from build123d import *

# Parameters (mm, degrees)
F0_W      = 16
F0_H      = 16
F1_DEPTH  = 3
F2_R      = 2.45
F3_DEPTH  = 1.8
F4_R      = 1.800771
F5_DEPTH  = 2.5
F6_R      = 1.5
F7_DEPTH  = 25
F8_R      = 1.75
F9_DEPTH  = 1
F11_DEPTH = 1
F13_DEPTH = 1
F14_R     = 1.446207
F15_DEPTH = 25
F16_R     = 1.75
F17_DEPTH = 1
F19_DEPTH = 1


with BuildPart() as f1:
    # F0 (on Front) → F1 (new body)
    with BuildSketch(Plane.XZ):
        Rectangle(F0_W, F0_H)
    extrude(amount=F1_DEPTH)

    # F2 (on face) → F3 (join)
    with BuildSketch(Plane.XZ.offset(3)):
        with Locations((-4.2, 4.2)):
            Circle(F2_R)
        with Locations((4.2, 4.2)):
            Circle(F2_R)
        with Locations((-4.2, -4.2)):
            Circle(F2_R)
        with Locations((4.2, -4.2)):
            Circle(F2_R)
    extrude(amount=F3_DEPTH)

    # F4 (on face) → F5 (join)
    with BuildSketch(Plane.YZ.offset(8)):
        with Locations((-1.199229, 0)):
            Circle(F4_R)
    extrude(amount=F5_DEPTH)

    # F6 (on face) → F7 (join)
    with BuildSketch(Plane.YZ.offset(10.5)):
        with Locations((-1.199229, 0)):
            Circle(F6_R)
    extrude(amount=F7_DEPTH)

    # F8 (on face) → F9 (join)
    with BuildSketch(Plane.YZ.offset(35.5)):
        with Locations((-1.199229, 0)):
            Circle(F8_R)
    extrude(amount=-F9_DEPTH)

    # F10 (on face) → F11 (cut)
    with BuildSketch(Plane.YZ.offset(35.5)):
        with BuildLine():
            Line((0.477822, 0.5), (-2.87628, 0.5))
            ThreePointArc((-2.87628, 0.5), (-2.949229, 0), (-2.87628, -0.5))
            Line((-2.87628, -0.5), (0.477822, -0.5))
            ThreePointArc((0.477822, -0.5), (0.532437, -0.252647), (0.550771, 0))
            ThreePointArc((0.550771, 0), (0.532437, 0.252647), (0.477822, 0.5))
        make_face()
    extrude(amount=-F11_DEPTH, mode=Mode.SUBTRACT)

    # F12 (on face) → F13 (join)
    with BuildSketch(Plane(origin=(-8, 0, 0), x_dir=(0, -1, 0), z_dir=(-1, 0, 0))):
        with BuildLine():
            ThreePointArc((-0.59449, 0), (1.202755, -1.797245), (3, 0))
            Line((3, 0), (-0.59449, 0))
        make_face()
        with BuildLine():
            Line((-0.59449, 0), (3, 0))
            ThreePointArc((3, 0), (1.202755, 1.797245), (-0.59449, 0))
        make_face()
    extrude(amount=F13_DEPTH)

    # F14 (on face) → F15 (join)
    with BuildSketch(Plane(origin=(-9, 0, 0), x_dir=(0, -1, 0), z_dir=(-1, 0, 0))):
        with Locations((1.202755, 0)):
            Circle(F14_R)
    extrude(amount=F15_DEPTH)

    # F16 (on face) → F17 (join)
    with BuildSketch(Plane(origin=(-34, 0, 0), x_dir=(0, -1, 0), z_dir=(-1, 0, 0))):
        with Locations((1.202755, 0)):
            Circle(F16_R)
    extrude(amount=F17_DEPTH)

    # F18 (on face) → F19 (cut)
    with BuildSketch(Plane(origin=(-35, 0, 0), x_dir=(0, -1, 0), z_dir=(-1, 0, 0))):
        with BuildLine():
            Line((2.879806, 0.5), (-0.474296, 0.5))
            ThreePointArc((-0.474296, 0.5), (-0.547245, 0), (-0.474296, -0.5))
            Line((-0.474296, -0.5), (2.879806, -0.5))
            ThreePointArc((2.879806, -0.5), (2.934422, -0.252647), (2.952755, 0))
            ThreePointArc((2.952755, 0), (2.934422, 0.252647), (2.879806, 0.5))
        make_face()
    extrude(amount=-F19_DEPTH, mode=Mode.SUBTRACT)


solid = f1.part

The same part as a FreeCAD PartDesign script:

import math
import FreeCAD as App
import Part
import Sketcher
Q = App.Units.Quantity

doc = App.newDocument("Part")
body = doc.addObject("PartDesign::Body", "Body")

# Sketch on XZ plane
sketch1 = body.newObject("Sketcher::SketchObject", "Sketch")
sketch1.AttachmentSupport = (doc.getObject("XZ_Plane"), [""])
sketch1.MapMode = "FlatFace"
sketch1.addGeometry(Part.LineSegment(App.Vector(-8, 8, 0), App.Vector(-8, -8, 0)), False)
sketch1.addGeometry(Part.LineSegment(App.Vector(-8, -8, 0), App.Vector(8, -8, 0)), False)
sketch1.addGeometry(Part.LineSegment(App.Vector(8, -8, 0), App.Vector(8, 8, 0)), False)
sketch1.addGeometry(Part.LineSegment(App.Vector(8, 8, 0), App.Vector(-8, 8, 0)), False)
sketch1.addConstraint(Sketcher.Constraint("Coincident", 0, 2, 1, 1))
sketch1.addConstraint(Sketcher.Constraint("Coincident", 1, 2, 2, 1))
sketch1.addConstraint(Sketcher.Constraint("Coincident", 2, 2, 3, 1))
sketch1.addConstraint(Sketcher.Constraint("Coincident", 3, 2, 0, 1))
sketch1.addConstraint(Sketcher.Constraint("Vertical", 0))
sketch1.addConstraint(Sketcher.Constraint("Horizontal", 1))
sketch1.addConstraint(Sketcher.Constraint("Vertical", 2))
sketch1.addConstraint(Sketcher.Constraint("Horizontal", 3))
sketch1.addConstraint(Sketcher.Constraint("Symmetric", 0, 2, 2, 2, -1, 1))
sketch1.addConstraint(Sketcher.Constraint("Equal", 3, 0))
sketch1.addConstraint(Sketcher.Constraint("DistanceX", 1, 1, 1, 2, Q("16 mm")))
pad1 = body.newObject("PartDesign::Pad", "Pad")
pad1.Profile = sketch1
pad1.Length = 3

# Sketch on XZ plane
sketch2 = body.newObject("Sketcher::SketchObject", "Sketch001")
sketch2.AttachmentSupport = (doc.getObject("XZ_Plane"), [""])
sketch2.MapMode = "FlatFace"
sketch2.AttachmentOffset = App.Placement(App.Vector(0, 0, 3), App.Rotation())
sketch2.addGeometry(Part.Circle(App.Vector(-4.2, 4.2, 0), App.Vector(0, 0, 1), 2.5), False)
sketch2.addGeometry(Part.Circle(App.Vector(4.2, 4.2, 0), App.Vector(0, 0, 1), 2.5), False)
sketch2.addGeometry(Part.Circle(App.Vector(-4.2, -4.2, 0), App.Vector(0, 0, 1), 2.5), False)
sketch2.addGeometry(Part.Circle(App.Vector(4.2, -4.2, 0), App.Vector(0, 0, 1), 2.5), False)
sketch2.addConstraint(Sketcher.Constraint("Equal", 0, 1))
sketch2.addConstraint(Sketcher.Constraint("Equal", 1, 2))
sketch2.addConstraint(Sketcher.Constraint("Equal", 2, 3))
sketch2.addConstraint(Sketcher.Constraint("Symmetric", 1, 3, 2, 3, -1, 1))
sketch2.addConstraint(Sketcher.Constraint("Symmetric", 0, 3, 3, 3, -1, 1))
sketch2.addConstraint(Sketcher.Constraint("Symmetric", 0, 3, 1, 3, -2))
sketch2.addConstraint(Sketcher.Constraint("Diameter", 0, Q("4.9 mm")))
sketch2.addConstraint(Sketcher.Constraint("DistanceX", 0, 3, -1, 1, Q("4.2 mm")))
sketch2.addConstraint(Sketcher.Constraint("DistanceY", -1, 1, 0, 3, Q("4.2 mm")))
pad2 = body.newObject("PartDesign::Pad", "Pad001")
pad2.Profile = sketch2
pad2.Length = 1.8

# Sketch on YZ plane
sketch3 = body.newObject("Sketcher::SketchObject", "Sketch002")
sketch3.AttachmentSupport = (doc.getObject("YZ_Plane"), [""])
sketch3.MapMode = "FlatFace"
sketch3.AttachmentOffset = App.Placement(App.Vector(0, 0, 8), App.Rotation())
sketch3.addGeometry(Part.Circle(App.Vector(-1.2, 0, 0), App.Vector(0, 0, 1), 1.8), False)
sketch3.addConstraint(Sketcher.Constraint("PointOnObject", 0, 3, -1))
sketch3.addConstraint(Sketcher.Constraint("Diameter", 0, Q("3.601542 mm")))
sketch3.addConstraint(Sketcher.Constraint("DistanceX", 0, 3, -1, 1, Q("1.199229 mm")))
pad3 = body.newObject("PartDesign::Pad", "Pad002")
pad3.Profile = sketch3
pad3.Length = 2.5

# Sketch on YZ plane
sketch4 = body.newObject("Sketcher::SketchObject", "Sketch003")
sketch4.AttachmentSupport = (doc.getObject("YZ_Plane"), [""])
sketch4.MapMode = "FlatFace"
sketch4.AttachmentOffset = App.Placement(App.Vector(0, 0, 10.5), App.Rotation())
sketch4.addGeometry(Part.Circle(App.Vector(-1.2, 0, 0), App.Vector(0, 0, 1), 1.5), False)
sketch4.addConstraint(Sketcher.Constraint("PointOnObject", 0, 3, -1))
sketch4.addConstraint(Sketcher.Constraint("Diameter", 0, Q("3 mm")))
sketch4.addConstraint(Sketcher.Constraint("DistanceX", 0, 3, -1, 1, Q("1.199229 mm")))
pad4 = body.newObject("PartDesign::Pad", "Pad003")
pad4.Profile = sketch4
pad4.Length = 25

# Sketch on YZ plane
sketch5 = body.newObject("Sketcher::SketchObject", "Sketch004")
sketch5.AttachmentSupport = (doc.getObject("YZ_Plane"), [""])
sketch5.MapMode = "FlatFace"
sketch5.AttachmentOffset = App.Placement(App.Vector(0, 0, 35.5), App.Rotation())
sketch5.addGeometry(Part.Circle(App.Vector(-1.2, 0, 0), App.Vector(0, 0, 1), 1.8), False)
sketch5.addConstraint(Sketcher.Constraint("PointOnObject", 0, 3, -1))
sketch5.addConstraint(Sketcher.Constraint("Diameter", 0, Q("3.5 mm")))
sketch5.addConstraint(Sketcher.Constraint("DistanceX", 0, 3, -1, 1, Q("1.199229 mm")))
pad5 = body.newObject("PartDesign::Pad", "Pad004")
pad5.Profile = sketch5
pad5.Length = 1
pad5.Reversed = True

# Sketch on YZ plane
sketch6 = body.newObject("Sketcher::SketchObject", "Sketch005")
sketch6.AttachmentSupport = (doc.getObject("YZ_Plane"), [""])
sketch6.MapMode = "FlatFace"
sketch6.AttachmentOffset = App.Placement(App.Vector(0, 0, 35.5), App.Rotation())
sketch6.addGeometry(Part.LineSegment(App.Vector(0.5, 0.5, 0), App.Vector(-2.9, 0.5, 0)), False)
sketch6.addGeometry(Part.ArcOfCircle(Part.Circle(App.Vector(-1.2, 0, 0), App.Vector(0, 0, 1), 1.8), math.radians(163), math.radians(197)), False)
sketch6.addGeometry(Part.LineSegment(App.Vector(-2.9, -0.5, 0), App.Vector(0.5, -0.5, 0)), False)
sketch6.addGeometry(Part.ArcOfCircle(Part.Circle(App.Vector(-1.2, 0, 0), App.Vector(0, 0, 1), 1.8), math.radians(-16.6), math.radians(0)), False)
sketch6.addGeometry(Part.ArcOfCircle(Part.Circle(App.Vector(-1.2, 0, 0), App.Vector(0, 0, 1), 1.8), math.radians(0), math.radians(16.6)), False)
sketch6.addConstraint(Sketcher.Constraint("Coincident", 0, 2, 1, 1))
sketch6.addConstraint(Sketcher.Constraint("Coincident", 1, 2, 2, 1))
sketch6.addConstraint(Sketcher.Constraint("Coincident", 2, 2, 3, 1))
sketch6.addConstraint(Sketcher.Constraint("Coincident", 3, 2, 4, 1))
sketch6.addConstraint(Sketcher.Constraint("Coincident", 4, 2, 0, 1))
sketch6.addConstraint(Sketcher.Constraint("Horizontal", 0))
sketch6.addConstraint(Sketcher.Constraint("Horizontal", 2))
sketch6.addConstraint(Sketcher.Constraint("Equal", 3, 4))
sketch6.addConstraint(Sketcher.Constraint("Symmetric", 0, 2, 1, 2, -1))
sketch6.addConstraint(Sketcher.Constraint("PointOnObject", 3, 2, -1))
sketch6.addConstraint(Sketcher.Constraint("Vertical", 2, 2, 4, 2))
sketch6.addConstraint(Sketcher.Constraint("Radius", 1, Q("1.75 mm")))
sketch6.addConstraint(Sketcher.Constraint("DistanceY", 1, 2, 0, 2, Q("1 mm")))
sketch6.addConstraint(Sketcher.Constraint("DistanceX", 1, 3, 3, 2, Q("1.75 mm")))
sketch6.addConstraint(Sketcher.Constraint("Radius", 3, Q("1.750064 mm")))
sketch6.addConstraint(Sketcher.Constraint("DistanceX", 0, 2, 0, 1, Q("3.354102 mm")))
sketch6.addConstraint(Sketcher.Constraint("DistanceX", 1, 3, -1, 1, Q("1.199229 mm")))
pocket1 = body.newObject("PartDesign::Pocket", "Pocket")
pocket1.Profile = sketch6
pocket1.Length = 1

# Sketch on YZ plane
sketch7 = body.newObject("Sketcher::SketchObject", "Sketch006")
sketch7.AttachmentSupport = (doc.getObject("YZ_Plane"), [""])
sketch7.MapMode = "FlatFace"
sketch7.AttachmentOffset = App.Placement(App.Vector(0, 0, -8), App.Rotation())
sketch7.addGeometry(Part.Circle(App.Vector(-1.2, 0, 0), App.Vector(0, 0, 1), 1.8), False)
sketch7.addConstraint(Sketcher.Constraint("PointOnObject", 0, 3, -1))
sketch7.addConstraint(Sketcher.Constraint("Diameter", 0, Q("3.59449 mm")))
sketch7.addConstraint(Sketcher.Constraint("DistanceX", 0, 3, -1, 1, Q("1.202755 mm")))
pad6 = body.newObject("PartDesign::Pad", "Pad005")
pad6.Profile = sketch7
pad6.Length = 1
pad6.Reversed = True

# Sketch on YZ plane
sketch8 = body.newObject("Sketcher::SketchObject", "Sketch007")
sketch8.AttachmentSupport = (doc.getObject("YZ_Plane"), [""])
sketch8.MapMode = "FlatFace"
sketch8.AttachmentOffset = App.Placement(App.Vector(0, 0, -9), App.Rotation())
sketch8.addGeometry(Part.Circle(App.Vector(-1.2, 0, 0), App.Vector(0, 0, 1), 1.4), False)
sketch8.addConstraint(Sketcher.Constraint("PointOnObject", 0, 3, -1))
sketch8.addConstraint(Sketcher.Constraint("Diameter", 0, Q("2.892414 mm")))
sketch8.addConstraint(Sketcher.Constraint("DistanceX", 0, 3, -1, 1, Q("1.202755 mm")))
pad7 = body.newObject("PartDesign::Pad", "Pad006")
pad7.Profile = sketch8
pad7.Length = 25
pad7.Reversed = True

# Sketch on YZ plane
sketch9 = body.newObject("Sketcher::SketchObject", "Sketch008")
sketch9.AttachmentSupport = (doc.getObject("YZ_Plane"), [""])
sketch9.MapMode = "FlatFace"
sketch9.AttachmentOffset = App.Placement(App.Vector(0, 0, -34), App.Rotation())
sketch9.addGeometry(Part.Circle(App.Vector(-1.2, 0, 0), App.Vector(0, 0, 1), 1.8), False)
sketch9.addConstraint(Sketcher.Constraint("PointOnObject", 0, 3, -1))
sketch9.addConstraint(Sketcher.Constraint("Diameter", 0, Q("3.5 mm")))
sketch9.addConstraint(Sketcher.Constraint("DistanceX", 0, 3, -1, 1, Q("1.202755 mm")))
pad8 = body.newObject("PartDesign::Pad", "Pad007")
pad8.Profile = sketch9
pad8.Length = 1
pad8.Reversed = True

# Sketch on YZ plane
sketch10 = body.newObject("Sketcher::SketchObject", "Sketch009")
sketch10.AttachmentSupport = (doc.getObject("YZ_Plane"), [""])
sketch10.MapMode = "FlatFace"
sketch10.AttachmentOffset = App.Placement(App.Vector(0, 0, -35), App.Rotation())
sketch10.addGeometry(Part.LineSegment(App.Vector(-2.9, 0.5, 0), App.Vector(0.5, 0.5, 0)), False)
sketch10.addGeometry(Part.ArcOfCircle(Part.Circle(App.Vector(-1.2, 0, 0), App.Vector(0, 0, 1), 1.8), math.radians(-17), math.radians(17)), False)
sketch10.addGeometry(Part.LineSegment(App.Vector(0.5, -0.5, 0), App.Vector(-2.9, -0.5, 0)), False)
sketch10.addGeometry(Part.ArcOfCircle(Part.Circle(App.Vector(-1.2, 0, 0), App.Vector(0, 0, 1), 1.7), math.radians(180), math.radians(196.6)), False)
sketch10.addGeometry(Part.ArcOfCircle(Part.Circle(App.Vector(-1.2, 0, 0), App.Vector(0, 0, 1), 1.7), math.radians(163.4), math.radians(180)), False)
sketch10.addConstraint(Sketcher.Constraint("Coincident", 0, 2, 1, 2))
sketch10.addConstraint(Sketcher.Constraint("Coincident", 1, 1, 2, 1))
sketch10.addConstraint(Sketcher.Constraint("Coincident", 2, 2, 3, 2))
sketch10.addConstraint(Sketcher.Constraint("Coincident", 3, 1, 4, 2))
sketch10.addConstraint(Sketcher.Constraint("Coincident", 4, 1, 0, 1))
sketch10.addConstraint(Sketcher.Constraint("Horizontal", 0))
sketch10.addConstraint(Sketcher.Constraint("Horizontal", 2))
sketch10.addConstraint(Sketcher.Constraint("Coincident", 4, 3, 3, 3))
sketch10.addConstraint(Sketcher.Constraint("Symmetric", 0, 2, 1, 1, -1))
sketch10.addConstraint(Sketcher.Constraint("PointOnObject", 3, 1, -1))
sketch10.addConstraint(Sketcher.Constraint("Vertical", 2, 2, 4, 1))
sketch10.addConstraint(Sketcher.Constraint("Radius", 1, Q("1.75 mm")))
sketch10.addConstraint(Sketcher.Constraint("DistanceY", 1, 1, 0, 2, Q("1 mm")))
sketch10.addConstraint(Sketcher.Constraint("Radius", 3, Q("1.749971 mm")))
sketch10.addConstraint(Sketcher.Constraint("DistanceX", 3, 1, 1, 3, Q("1.75 mm")))
sketch10.addConstraint(Sketcher.Constraint("DistanceX", 1, 3, -1, 1, Q("1.202755 mm")))
pocket2 = body.newObject("PartDesign::Pocket", "Pocket001")
pocket2.Profile = sketch10
pocket2.Length = 1
pocket2.Reversed = True

doc.recompute()
